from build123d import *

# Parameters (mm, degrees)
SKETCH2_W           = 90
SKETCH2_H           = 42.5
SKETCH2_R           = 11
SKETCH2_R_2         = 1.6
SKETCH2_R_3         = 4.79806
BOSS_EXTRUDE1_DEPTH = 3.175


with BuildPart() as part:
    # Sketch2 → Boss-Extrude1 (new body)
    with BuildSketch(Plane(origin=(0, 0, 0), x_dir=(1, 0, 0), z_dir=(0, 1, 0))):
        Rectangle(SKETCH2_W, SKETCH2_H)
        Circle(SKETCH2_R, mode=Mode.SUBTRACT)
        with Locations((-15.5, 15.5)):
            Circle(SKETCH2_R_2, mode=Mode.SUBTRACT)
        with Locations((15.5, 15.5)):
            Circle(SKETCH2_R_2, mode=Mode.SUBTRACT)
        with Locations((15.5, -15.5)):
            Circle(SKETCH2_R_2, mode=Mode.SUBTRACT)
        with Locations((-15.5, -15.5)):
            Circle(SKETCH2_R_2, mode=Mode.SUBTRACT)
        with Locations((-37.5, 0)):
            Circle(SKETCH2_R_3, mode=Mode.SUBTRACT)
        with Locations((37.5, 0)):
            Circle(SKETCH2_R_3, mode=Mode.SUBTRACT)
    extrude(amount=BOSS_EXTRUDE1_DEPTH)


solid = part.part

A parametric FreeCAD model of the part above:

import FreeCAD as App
import Part
import Sketcher
from FreeCAD import Vector

doc = App.newDocument("Part")
params = doc.addObject("Spreadsheet::Sheet", "Params")
for row, (alias, value) in enumerate([
    ("sketch1_diameter", "22 mm"),
    ("sketch1_diameter2", "3.2 mm"),
    ("sketch1_width", "90 mm"),
    ("sketch1_height", "42.5 mm"),
    ("pad1_length", "3.175 mm"),
], start=1):
    params.set(f"A{row}", alias)
    params.set(f"B{row}", "=" + value)
    params.setAlias(f"B{row}", alias)

body = doc.addObject("PartDesign::Body", "Body")

# Sketch on XZ plane
sketch1 = body.newObject("Sketcher::SketchObject", "Sketch")
sketch1.AttachmentSupport = (doc.getObject("XZ_Plane"), [""])
sketch1.MapMode = "FlatFace"
sketch1.addGeometry(Part.LineSegment(Vector(-45, -21.2, 0), Vector(-45, 21.2, 0)), False)
sketch1.addGeometry(Part.LineSegment(Vector(-45, 21.2, 0), Vector(45, 21.2, 0)), False)
sketch1.addGeometry(Part.LineSegment(Vector(45, 21.2, 0), Vector(45, -21.2, 0)), False)
sketch1.addGeometry(Part.LineSegment(Vector(45, -21.2, 0), Vector(-45, -21.2, 0)), False)
sketch1.addGeometry(Part.Circle(Vector(-15.5, 15.5, 0), Vector(0, 0, 1), 1.6), False)
sketch1.addGeometry(Part.Circle(Vector(15.5, 15.5, 0), Vector(0, 0, 1), 1.6), False)
sketch1.addGeometry(Part.Circle(Vector(-37.5, 0, 0), Vector(0, 0, 1), 4.8), False)
sketch1.addGeometry(Part.Circle(Vector(-15.5, -15.5, 0), Vector(0, 0, 1), 1.6), False)
sketch1.addGeometry(Part.Circle(Vector(0, 0, 0), Vector(0, 0, 1), 11), False)
sketch1.addGeometry(Part.Circle(Vector(37.5, 0, 0), Vector(0, 0, 1), 4.8), False)
sketch1.addGeometry(Part.Circle(Vector(15.5, -15.5, 0), Vector(0, 0, 1), 1.6), False)
sketch1.addConstraint(Sketcher.Constraint("Coincident", 0, 2, 1, 1))
sketch1.addConstraint(Sketcher.Constraint("Coincident", 1, 2, 2, 1))
sketch1.addConstraint(Sketcher.Constraint("Coincident", 2, 2, 3, 1))
sketch1.addConstraint(Sketcher.Constraint("Coincident", 3, 2, 0, 1))
sketch1.addConstraint(Sketcher.Constraint("Vertical", 0))
sketch1.addConstraint(Sketcher.Constraint("Horizontal", 1))
sketch1.addConstraint(Sketcher.Constraint("Vertical", 2))
sketch1.addConstraint(Sketcher.Constraint("Horizontal", 3))
sketch1.addConstraint(Sketcher.Constraint("Coincident", 8, 3, -1, 1))
sketch1.addConstraint(Sketcher.Constraint("Equal", 4, 5))
sketch1.addConstraint(Sketcher.Constraint("Equal", 5, 7))
sketch1.addConstraint(Sketcher.Constraint("Equal", 6, 9))
sketch1.addConstraint(Sketcher.Constraint("Equal", 7, 10))
sketch1.addConstraint(Sketcher.Constraint("Symmetric", 5, 3, 7, 3, -1, 1))
sketch1.addConstraint(Sketcher.Constraint("Symmetric", 6, 3, 9, 3, -1, 1))
sketch1.addConstraint(Sketcher.Constraint("Symmetric", 4, 3, 10, 3, -1, 1))
sketch1.addConstraint(Sketcher.Constraint("Symmetric", 0, 2, 2, 2, -1, 1))
sketch1.addConstraint(Sketcher.Constraint("Symmetric", 4, 3, 5, 3, -2))
sketch1.addConstraint(Sketcher.Constraint("PointOnObject", 6, 3, -1))
sketch1.addConstraint(Sketcher.Constraint("Diameter", 8, 22.0))
sketch1.addConstraint(Sketcher.Constraint("Diameter", 4, 3.2))
sketch1.addConstraint(Sketcher.Constraint("DistanceX", 1, 1, 1, 2, 90.0))
sketch1.addConstraint(Sketcher.Constraint("DistanceY", 0, 1, 0, 2, 42.5))
sketch1.addConstraint(Sketcher.Constraint("DistanceX", 4, 3, 5, 3, 31.0))
sketch1.addConstraint(Sketcher.Constraint("DistanceX", 6, 3, 4, 3, 22.0))
sketch1.addConstraint(Sketcher.Constraint("DistanceY", 7, 3, 4, 3, 31.0))
sketch1.addConstraint(Sketcher.Constraint("Diameter", 6, 9.59612))
sketch1.setExpression("Constraints[19]", "Params.sketch1_diameter")
sketch1.setExpression("Constraints[20]", "Params.sketch1_diameter2")
sketch1.setExpression("Constraints[21]", "Params.sketch1_width")
sketch1.setExpression("Constraints[22]", "Params.sketch1_height")
pad1 = body.newObject("PartDesign::Pad", "Pad")
pad1.Profile = sketch1
pad1.setExpression("Length", "Params.pad1_length")
pad1.Reversed = True

doc.recompute()
